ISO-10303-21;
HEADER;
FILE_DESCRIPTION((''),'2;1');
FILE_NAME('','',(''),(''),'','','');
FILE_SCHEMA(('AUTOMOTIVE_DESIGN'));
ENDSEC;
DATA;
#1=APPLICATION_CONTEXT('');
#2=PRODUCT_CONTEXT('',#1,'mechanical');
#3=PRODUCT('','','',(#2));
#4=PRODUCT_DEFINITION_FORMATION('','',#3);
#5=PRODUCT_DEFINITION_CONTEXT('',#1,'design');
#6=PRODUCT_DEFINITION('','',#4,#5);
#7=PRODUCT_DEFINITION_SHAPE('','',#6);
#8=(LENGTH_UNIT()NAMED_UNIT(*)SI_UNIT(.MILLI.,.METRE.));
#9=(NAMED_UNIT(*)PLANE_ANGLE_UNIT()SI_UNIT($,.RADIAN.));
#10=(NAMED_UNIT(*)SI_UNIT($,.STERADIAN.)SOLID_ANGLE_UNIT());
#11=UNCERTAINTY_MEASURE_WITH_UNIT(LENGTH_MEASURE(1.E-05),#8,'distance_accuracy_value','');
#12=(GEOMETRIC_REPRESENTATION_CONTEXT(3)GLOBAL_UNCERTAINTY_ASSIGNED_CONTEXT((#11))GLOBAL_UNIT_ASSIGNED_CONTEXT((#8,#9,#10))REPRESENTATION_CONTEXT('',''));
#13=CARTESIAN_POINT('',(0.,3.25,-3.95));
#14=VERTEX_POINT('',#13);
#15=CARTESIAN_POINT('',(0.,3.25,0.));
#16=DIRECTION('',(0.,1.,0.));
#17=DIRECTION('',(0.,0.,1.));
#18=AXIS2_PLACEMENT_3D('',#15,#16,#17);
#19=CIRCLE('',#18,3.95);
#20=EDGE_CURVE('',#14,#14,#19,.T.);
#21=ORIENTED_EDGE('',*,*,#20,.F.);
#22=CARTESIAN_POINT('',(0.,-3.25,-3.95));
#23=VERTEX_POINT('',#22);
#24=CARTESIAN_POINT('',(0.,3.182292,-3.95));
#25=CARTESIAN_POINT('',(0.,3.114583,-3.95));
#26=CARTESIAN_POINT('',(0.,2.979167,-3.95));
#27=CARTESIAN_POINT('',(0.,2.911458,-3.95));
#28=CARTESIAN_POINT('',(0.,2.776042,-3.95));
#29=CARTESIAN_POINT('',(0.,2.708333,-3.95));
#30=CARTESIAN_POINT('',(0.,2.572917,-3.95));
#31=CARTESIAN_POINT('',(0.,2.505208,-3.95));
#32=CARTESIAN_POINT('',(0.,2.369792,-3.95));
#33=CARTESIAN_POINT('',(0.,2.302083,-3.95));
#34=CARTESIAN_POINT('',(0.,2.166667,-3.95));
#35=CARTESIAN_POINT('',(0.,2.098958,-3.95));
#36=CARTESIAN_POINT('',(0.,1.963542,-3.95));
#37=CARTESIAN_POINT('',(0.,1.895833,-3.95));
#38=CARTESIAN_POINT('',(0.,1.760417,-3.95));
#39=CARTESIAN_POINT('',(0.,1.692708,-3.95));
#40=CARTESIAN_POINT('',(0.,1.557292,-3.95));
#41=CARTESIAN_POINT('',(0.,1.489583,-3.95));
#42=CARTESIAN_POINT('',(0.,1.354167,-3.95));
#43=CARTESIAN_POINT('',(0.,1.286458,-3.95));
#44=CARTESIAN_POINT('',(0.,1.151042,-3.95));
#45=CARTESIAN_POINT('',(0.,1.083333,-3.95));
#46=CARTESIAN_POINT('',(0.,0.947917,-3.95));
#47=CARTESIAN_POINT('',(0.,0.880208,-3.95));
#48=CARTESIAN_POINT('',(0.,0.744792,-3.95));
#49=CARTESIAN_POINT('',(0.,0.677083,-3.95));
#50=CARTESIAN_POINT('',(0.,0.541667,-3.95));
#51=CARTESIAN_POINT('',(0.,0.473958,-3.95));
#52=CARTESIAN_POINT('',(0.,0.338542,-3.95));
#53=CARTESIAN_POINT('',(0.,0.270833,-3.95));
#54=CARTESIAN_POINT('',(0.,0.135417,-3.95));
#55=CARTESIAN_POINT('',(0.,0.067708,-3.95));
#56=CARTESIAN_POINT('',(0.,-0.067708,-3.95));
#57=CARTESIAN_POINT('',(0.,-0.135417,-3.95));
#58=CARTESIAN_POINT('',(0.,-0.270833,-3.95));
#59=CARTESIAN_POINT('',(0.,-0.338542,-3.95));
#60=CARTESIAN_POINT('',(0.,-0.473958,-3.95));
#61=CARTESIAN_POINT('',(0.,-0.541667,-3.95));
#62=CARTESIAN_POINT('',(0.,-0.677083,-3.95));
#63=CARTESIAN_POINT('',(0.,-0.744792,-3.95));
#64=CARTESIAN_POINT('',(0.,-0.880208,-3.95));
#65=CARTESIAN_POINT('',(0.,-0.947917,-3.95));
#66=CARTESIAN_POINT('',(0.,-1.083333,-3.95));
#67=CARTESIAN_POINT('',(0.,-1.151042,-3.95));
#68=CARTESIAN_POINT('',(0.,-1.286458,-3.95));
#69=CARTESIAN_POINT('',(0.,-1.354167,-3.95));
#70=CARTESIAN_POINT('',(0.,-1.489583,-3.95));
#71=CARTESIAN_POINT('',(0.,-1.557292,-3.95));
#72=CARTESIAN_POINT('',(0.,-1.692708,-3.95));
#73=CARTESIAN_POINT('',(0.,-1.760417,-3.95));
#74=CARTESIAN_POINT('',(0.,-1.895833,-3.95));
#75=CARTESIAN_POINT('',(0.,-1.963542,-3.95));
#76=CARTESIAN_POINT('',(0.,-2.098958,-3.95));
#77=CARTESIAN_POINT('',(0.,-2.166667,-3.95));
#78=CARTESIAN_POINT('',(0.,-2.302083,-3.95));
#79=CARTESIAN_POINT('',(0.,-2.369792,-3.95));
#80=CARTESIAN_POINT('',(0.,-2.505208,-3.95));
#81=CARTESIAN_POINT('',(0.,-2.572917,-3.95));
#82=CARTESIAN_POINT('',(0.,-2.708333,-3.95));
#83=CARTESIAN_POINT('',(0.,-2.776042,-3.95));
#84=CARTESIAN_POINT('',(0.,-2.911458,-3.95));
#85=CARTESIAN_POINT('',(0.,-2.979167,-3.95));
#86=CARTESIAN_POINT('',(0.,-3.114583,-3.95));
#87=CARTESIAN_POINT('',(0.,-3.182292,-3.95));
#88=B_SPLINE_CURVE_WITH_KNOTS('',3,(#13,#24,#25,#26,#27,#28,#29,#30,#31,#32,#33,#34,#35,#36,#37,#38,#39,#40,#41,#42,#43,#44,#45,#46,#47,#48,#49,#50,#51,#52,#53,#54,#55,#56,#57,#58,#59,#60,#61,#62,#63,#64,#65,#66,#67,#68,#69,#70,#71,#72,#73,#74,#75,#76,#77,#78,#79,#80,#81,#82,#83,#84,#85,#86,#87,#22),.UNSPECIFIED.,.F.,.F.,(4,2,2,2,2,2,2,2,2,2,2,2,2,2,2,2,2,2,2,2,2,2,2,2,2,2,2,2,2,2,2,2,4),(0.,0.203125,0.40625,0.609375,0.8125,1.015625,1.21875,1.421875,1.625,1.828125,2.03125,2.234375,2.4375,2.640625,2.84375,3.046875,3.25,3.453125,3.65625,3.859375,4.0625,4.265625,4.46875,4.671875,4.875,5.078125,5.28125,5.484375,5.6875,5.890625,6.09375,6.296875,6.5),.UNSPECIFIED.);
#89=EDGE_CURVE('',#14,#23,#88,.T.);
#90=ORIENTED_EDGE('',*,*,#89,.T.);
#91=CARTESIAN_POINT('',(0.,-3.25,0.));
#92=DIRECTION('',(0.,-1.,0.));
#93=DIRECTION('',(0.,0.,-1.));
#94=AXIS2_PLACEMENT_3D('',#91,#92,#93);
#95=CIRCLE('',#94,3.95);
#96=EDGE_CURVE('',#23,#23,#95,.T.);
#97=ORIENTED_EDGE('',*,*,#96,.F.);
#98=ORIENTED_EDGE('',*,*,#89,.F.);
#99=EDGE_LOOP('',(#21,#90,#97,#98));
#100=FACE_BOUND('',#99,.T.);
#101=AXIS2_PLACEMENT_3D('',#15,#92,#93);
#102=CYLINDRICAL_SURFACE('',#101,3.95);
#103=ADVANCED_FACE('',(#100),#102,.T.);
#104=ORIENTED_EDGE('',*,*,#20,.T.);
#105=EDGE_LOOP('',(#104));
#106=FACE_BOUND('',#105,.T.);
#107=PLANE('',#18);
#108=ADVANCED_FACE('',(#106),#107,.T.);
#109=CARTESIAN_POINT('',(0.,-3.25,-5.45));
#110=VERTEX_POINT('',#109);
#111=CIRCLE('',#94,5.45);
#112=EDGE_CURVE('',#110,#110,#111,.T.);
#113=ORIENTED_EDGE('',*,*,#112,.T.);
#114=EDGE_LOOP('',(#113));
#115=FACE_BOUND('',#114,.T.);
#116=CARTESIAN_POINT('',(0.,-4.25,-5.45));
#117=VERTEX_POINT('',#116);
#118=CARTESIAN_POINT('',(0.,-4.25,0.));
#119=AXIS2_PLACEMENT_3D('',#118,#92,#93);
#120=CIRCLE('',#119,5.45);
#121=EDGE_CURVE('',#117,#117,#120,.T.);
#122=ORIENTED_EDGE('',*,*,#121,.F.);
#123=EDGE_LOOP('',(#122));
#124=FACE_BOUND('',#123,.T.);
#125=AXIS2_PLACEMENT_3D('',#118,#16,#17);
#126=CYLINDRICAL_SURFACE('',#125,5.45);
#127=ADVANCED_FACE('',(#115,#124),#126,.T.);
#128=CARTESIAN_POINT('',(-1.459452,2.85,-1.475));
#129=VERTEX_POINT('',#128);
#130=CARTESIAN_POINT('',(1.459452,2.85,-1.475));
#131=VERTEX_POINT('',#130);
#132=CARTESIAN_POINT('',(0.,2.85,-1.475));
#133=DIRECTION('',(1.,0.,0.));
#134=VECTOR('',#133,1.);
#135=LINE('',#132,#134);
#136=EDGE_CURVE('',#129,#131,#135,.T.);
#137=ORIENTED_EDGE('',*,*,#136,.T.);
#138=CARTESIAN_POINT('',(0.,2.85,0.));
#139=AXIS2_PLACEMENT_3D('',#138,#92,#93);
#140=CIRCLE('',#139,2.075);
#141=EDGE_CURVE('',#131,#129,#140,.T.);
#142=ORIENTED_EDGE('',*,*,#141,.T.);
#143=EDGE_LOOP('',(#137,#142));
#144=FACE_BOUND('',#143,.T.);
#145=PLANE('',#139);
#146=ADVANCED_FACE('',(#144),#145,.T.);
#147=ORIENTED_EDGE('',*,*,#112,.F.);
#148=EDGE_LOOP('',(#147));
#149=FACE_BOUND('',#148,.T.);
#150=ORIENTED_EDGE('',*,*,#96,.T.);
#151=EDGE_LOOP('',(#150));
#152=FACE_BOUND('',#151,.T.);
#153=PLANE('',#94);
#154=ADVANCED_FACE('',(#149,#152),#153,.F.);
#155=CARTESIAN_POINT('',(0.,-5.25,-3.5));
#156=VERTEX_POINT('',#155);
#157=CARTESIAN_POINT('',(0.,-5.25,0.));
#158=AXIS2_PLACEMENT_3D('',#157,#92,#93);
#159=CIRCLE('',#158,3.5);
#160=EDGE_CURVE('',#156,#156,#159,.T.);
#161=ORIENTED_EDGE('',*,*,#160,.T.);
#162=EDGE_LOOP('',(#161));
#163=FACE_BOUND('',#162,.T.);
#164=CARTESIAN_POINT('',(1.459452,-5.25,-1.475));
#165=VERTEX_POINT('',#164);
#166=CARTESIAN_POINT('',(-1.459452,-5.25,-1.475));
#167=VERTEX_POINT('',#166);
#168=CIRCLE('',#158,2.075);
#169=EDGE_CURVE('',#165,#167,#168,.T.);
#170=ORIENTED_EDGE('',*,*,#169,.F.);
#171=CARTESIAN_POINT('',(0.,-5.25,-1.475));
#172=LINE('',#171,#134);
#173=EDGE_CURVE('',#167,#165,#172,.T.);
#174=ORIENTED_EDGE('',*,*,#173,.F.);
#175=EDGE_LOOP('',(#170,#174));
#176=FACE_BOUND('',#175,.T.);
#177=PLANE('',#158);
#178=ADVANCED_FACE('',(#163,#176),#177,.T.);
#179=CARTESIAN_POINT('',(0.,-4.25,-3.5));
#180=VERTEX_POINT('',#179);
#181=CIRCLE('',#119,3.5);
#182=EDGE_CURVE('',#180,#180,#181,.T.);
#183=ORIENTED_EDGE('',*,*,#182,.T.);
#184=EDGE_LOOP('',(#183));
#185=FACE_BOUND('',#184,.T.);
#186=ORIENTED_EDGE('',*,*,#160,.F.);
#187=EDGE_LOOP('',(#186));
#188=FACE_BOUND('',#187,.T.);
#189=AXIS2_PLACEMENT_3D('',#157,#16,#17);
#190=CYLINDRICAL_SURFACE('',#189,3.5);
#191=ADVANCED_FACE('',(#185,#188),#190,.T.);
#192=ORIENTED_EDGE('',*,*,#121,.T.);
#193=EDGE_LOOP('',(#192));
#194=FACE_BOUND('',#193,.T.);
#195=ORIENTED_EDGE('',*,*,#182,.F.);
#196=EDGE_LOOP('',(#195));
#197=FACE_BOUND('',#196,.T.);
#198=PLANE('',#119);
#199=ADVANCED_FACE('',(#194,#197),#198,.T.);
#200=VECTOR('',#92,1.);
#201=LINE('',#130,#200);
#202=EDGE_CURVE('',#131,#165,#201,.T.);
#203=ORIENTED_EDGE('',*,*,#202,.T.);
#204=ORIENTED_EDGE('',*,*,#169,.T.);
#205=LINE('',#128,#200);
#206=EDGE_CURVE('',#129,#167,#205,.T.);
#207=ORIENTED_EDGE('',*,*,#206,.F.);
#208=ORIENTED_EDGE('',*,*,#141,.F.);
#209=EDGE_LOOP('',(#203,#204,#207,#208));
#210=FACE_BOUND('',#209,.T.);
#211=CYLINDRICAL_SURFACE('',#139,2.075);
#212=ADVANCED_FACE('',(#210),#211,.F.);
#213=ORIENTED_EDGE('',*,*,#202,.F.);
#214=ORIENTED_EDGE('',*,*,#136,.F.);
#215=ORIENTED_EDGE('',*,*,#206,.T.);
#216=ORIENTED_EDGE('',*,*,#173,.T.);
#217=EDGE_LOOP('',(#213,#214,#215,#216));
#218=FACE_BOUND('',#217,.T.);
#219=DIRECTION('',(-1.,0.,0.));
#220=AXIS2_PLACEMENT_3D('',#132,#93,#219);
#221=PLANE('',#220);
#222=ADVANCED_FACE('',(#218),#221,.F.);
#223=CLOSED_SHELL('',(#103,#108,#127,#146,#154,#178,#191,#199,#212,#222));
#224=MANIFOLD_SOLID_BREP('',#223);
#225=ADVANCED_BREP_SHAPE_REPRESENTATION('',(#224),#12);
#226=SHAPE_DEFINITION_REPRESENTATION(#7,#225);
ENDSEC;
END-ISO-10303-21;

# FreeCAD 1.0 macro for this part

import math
import FreeCAD as App
import Part
import Sketcher

V = App.Vector
Q = App.Units.Quantity

doc = App.newDocument("Part")
body = doc.addObject("PartDesign::Body", "Body")

# Sketch on XZ plane
sketch1 = body.newObject("Sketcher::SketchObject", "Sketch")
sketch1.AttachmentSupport = (doc.getObject("XZ_Plane"), [""])
sketch1.MapMode = "FlatFace"
sketch1.addGeometry(Part.Circle(V(0, 0, 0), V(0, 0, 1), 3.95), False)
sketch1.addConstraint([
    Sketcher.Constraint("Coincident", 0, 3, -1, 1),
    Sketcher.Constraint("Diameter", 0, Q("7.9 mm")),
])
pad1 = body.newObject("PartDesign::Pad", "Pad")
pad1.Profile = sketch1
pad1.Length = 6.5
pad1.Midplane = True

# Sketch on XZ plane
sketch2 = body.newObject("Sketcher::SketchObject", "Sketch001")
sketch2.AttachmentSupport = (doc.getObject("XZ_Plane"), [""])
sketch2.MapMode = "FlatFace"
sketch2.AttachmentOffset = App.Placement(V(0, 0, 3.25), App.Rotation())
sketch2.addGeometry(Part.Circle(V(0, 0, 0), V(0, 0, 1), 3.5), False)
sketch2.addConstraint([
    Sketcher.Constraint("Coincident", 0, 3, -1, 1),
    Sketcher.Constraint("Diameter", 0, Q("7 mm")),
])
pad2 = body.newObject("PartDesign::Pad", "Pad001")
pad2.Profile = sketch2
pad2.Length = 2

# Sketch on XZ plane
sketch3 = body.newObject("Sketcher::SketchObject", "Sketch002")
sketch3.AttachmentSupport = (doc.getObject("XZ_Plane"), [""])
sketch3.MapMode = "FlatFace"
sketch3.AttachmentOffset = App.Placement(V(0, 0, 3.25), App.Rotation())
sketch3.addGeometry(Part.Circle(V(0, 0, 0), V(0, 0, 1), 5.45), False)
sketch3.addConstraint([
    Sketcher.Constraint("Coincident", 0, 3, -1, 1),
    Sketcher.Constraint("Diameter", 0, Q("10.9 mm")),
])
pad3 = body.newObject("PartDesign::Pad", "Pad002")
pad3.Profile = sketch3
pad3.Length = 1

# Sketch on XZ plane
sketch4 = body.newObject("Sketcher::SketchObject", "Sketch003")
sketch4.AttachmentSupport = (doc.getObject("XZ_Plane"), [""])
sketch4.MapMode = "FlatFace"
sketch4.AttachmentOffset = App.Placement(V(0, 0, 5.25), App.Rotation())
sketch4.addGeometry([
    Part.ArcOfCircle(Part.Circle(V(0, 0, 0), V(0, 0, 1), 2.075), math.radians(0), math.radians(225.303576)),
    Part.LineSegment(V(-1.459452, -1.475, 0), V(1.459452, -1.475, 0)),
    Part.ArcOfCircle(Part.Circle(V(0, 0, 0), V(0, 0, 1), 2.075), math.radians(-45.303576), math.radians(0)),
], False)
sketch4.addConstraint([
    Sketcher.Constraint("Coincident", 0, 2, 1, 1),
    Sketcher.Constraint("Coincident", 1, 2, 2, 1),
    Sketcher.Constraint("Tangent", 2, 2, 0, 1),
    Sketcher.Constraint("Horizontal", 1),
    Sketcher.Constraint("Coincident", 0, 3, -1, 1),
    Sketcher.Constraint("Equal", 0, 2),
    Sketcher.Constraint("PointOnObject", 2, 2, -1),
    Sketcher.Constraint("Radius", 0, Q("2.075 mm")),
    Sketcher.Constraint("DistanceY", 0, 2, -1, 1, Q("1.475 mm")),
])
pocket1 = body.newObject("PartDesign::Pocket", "Pocket")
pocket1.Profile = sketch4
pocket1.Length = 8.1

doc.recompute()
